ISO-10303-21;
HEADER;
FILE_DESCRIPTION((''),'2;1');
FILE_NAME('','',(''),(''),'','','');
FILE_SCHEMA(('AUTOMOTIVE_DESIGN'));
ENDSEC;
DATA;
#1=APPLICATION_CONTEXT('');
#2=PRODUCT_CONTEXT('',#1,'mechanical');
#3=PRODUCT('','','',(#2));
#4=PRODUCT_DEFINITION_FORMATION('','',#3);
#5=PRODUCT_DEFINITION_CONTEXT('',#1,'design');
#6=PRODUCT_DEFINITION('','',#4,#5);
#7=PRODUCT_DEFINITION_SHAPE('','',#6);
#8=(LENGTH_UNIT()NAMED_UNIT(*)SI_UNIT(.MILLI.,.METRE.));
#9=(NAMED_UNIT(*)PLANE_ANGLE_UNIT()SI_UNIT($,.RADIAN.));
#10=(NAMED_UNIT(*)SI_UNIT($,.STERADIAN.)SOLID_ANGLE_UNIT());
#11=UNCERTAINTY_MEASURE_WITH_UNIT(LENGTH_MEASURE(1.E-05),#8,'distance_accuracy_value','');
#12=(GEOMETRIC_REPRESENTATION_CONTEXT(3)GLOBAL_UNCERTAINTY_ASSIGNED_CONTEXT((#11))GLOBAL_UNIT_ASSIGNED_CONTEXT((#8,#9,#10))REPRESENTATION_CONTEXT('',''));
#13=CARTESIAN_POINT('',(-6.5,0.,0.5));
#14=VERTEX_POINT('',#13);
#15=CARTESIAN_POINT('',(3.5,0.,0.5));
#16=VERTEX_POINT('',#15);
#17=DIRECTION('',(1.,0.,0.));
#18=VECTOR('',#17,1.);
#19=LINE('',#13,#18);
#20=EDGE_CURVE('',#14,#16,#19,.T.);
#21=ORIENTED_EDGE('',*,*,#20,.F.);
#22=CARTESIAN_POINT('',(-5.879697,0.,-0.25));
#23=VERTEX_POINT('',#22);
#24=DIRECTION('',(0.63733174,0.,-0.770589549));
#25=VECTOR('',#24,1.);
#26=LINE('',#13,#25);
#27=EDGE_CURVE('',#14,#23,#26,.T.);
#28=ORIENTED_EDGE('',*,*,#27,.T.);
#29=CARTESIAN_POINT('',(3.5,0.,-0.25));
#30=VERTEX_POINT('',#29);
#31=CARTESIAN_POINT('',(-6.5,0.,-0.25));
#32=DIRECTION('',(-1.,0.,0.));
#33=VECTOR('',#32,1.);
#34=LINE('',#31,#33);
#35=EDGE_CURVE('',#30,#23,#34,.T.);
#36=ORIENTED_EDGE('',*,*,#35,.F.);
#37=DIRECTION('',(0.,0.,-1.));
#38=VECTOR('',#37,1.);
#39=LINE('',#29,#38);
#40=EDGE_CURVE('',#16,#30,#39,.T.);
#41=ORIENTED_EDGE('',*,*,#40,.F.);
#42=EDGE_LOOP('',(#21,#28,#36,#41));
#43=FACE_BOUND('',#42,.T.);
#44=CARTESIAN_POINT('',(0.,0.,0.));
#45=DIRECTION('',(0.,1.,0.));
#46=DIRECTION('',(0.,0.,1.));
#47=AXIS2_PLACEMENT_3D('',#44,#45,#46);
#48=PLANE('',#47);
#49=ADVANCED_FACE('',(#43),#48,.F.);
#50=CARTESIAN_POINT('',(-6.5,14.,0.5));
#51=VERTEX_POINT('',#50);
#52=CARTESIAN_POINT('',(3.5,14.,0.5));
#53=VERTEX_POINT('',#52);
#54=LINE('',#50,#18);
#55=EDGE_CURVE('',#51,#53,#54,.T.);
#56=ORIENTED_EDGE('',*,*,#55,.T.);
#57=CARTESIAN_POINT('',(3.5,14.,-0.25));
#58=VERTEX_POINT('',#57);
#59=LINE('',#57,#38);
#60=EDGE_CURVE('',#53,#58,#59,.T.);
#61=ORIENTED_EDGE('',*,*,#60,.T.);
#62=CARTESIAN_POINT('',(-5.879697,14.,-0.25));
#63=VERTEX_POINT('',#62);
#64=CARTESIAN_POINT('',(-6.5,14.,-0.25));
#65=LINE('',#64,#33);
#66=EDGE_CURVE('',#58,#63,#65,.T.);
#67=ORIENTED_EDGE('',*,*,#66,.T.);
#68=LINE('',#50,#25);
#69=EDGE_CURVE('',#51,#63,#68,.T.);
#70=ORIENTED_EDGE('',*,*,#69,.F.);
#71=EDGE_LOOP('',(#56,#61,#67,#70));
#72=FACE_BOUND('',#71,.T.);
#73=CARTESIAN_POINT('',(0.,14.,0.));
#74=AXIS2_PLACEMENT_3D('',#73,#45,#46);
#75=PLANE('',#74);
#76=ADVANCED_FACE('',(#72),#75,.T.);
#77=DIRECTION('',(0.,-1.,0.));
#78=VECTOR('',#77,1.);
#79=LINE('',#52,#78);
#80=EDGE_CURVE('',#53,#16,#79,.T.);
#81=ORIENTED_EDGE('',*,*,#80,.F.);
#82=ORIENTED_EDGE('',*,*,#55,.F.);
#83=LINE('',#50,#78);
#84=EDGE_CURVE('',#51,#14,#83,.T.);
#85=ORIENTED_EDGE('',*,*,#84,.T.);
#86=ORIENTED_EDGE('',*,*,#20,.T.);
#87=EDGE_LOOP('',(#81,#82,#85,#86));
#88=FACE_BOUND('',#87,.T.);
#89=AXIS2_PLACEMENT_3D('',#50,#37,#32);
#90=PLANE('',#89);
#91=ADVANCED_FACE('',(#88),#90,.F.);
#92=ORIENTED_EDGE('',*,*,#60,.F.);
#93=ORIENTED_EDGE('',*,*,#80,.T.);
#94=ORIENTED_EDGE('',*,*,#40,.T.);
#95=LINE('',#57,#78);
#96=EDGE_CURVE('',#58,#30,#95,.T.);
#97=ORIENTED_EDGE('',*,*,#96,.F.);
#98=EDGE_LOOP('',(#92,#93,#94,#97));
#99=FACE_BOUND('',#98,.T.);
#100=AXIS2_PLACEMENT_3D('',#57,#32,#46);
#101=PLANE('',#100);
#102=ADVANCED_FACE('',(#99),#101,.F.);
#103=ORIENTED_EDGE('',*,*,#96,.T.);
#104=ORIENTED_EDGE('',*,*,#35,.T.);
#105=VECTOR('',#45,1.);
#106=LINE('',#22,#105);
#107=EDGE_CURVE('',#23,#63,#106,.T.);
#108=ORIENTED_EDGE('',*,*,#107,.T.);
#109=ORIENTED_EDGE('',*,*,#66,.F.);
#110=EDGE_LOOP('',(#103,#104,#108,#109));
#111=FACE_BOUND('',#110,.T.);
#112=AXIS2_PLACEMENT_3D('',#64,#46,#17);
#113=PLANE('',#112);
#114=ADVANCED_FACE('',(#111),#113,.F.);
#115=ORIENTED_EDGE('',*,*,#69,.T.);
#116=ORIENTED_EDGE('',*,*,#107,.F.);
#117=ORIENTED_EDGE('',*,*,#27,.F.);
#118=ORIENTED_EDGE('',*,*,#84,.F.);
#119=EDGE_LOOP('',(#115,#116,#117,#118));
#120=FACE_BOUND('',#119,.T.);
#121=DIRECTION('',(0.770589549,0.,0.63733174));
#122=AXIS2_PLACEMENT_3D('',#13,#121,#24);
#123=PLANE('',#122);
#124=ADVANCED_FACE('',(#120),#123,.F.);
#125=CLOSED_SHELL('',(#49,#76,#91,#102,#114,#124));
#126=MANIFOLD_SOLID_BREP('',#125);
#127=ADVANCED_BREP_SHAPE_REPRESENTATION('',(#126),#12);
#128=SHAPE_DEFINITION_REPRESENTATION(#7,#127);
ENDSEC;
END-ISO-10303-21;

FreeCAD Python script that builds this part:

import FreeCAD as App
import Part
import Sketcher

V = App.Vector
Q = App.Units.Quantity

doc = App.newDocument("Part")
body = doc.addObject("PartDesign::Body", "Body")

sketch1 = body.newObject("Sketcher::SketchObject", "Sketch")
sketch1.AttachmentSupport = (doc.getObject("XZ_Plane"), [""])
sketch1.MapMode = "FlatFace"
sketch1.addGeometry([
    Part.LineSegment(V(-6.5, -0.2, 0), V(-6.5, 0.5, 0)),
    Part.LineSegment(V(-6.5, 0.5, 0), V(3.5, 0.5, 0)),
    Part.LineSegment(V(3.5, 0.5, 0), V(3.5, -0.2, 0)),
    Part.LineSegment(V(3.5, -0.2, 0), V(-6.5, -0.2, 0)),
], False)
sketch1.addConstraint([
    Sketcher.Constraint("Coincident", 0, 2, 1, 1),
    Sketcher.Constraint("Coincident", 1, 2, 2, 1),
    Sketcher.Constraint("Coincident", 2, 2, 3, 1),
    Sketcher.Constraint("Coincident", 3, 2, 0, 1),
    Sketcher.Constraint("Vertical", 0),
    Sketcher.Constraint("Horizontal", 1),
    Sketcher.Constraint("Vertical", 2),
    Sketcher.Constraint("Horizontal", 3),
    Sketcher.Constraint("DistanceX", 1, 1, 1, 2, Q("10 mm")),
    Sketcher.Constraint("DistanceY", 0, 1, 0, 2, Q("0.75 mm")),
    Sketcher.Constraint("DistanceX", 0, 2, -1, 1, Q("6.5 mm")),
    Sketcher.Constraint("DistanceY", -1, 1, 0, 2, Q("0.5 mm")),
])
pad1 = body.newObject("PartDesign::Pad", "Pad")
pad1.Profile = sketch1
pad1.Length = 14
pad1.Reversed = True

sketch2 = body.newObject("Sketcher::SketchObject", "Sketch001")
sketch2.AttachmentSupport = (doc.getObject("XZ_Plane"), [""])
sketch2.MapMode = "FlatFace"
sketch2.AttachmentOffset = App.Placement(V(0, 0, -14), App.Rotation())
sketch2.addGeometry([
    Part.LineSegment(V(-6.5, 0.5, 0), V(-5.9, -0.2, 0)),
    Part.LineSegment(V(-5.9, -0.2, 0), V(-6.5, -0.2, 0)),
    Part.LineSegment(V(-6.5, -0.2, 0), V(-6.5, 0.5, 0)),
], False)
sketch2.addConstraint([
    Sketcher.Constraint("Coincident", 0, 2, 1, 1),
    Sketcher.Constraint("Coincident", 1, 2, 2, 1),
    Sketcher.Constraint("Coincident", 2, 2, 0, 1),
    Sketcher.Constraint("Horizontal", 1),
    Sketcher.Constraint("Vertical", 2),
    Sketcher.Constraint("DistanceY", 2, 1, 2, 2, Q("0.75 mm")),
    Sketcher.Constraint("DistanceX", 1, 2, -1, 1, Q("6.5 mm")),
    Sketcher.Constraint("DistanceY", -1, 1, 2, 2, Q("0.5 mm")),
    Sketcher.Constraint("Distance", 0, Q("0.973281 mm")),
])
pocket1 = body.newObject("PartDesign::Pocket", "Pocket")
pocket1.Profile = sketch2
pocket1.Type = "ThroughAll"
pocket1.Reversed = True

doc.recompute()
